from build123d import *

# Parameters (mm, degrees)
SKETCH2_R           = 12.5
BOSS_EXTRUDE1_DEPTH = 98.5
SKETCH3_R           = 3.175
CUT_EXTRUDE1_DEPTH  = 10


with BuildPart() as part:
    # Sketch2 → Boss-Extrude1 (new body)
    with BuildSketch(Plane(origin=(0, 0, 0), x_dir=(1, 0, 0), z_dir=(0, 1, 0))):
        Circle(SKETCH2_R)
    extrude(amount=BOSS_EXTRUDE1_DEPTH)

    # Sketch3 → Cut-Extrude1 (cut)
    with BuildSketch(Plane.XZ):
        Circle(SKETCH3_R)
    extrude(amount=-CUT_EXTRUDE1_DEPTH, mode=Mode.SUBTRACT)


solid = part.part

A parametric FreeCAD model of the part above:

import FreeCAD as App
import Part
import Sketcher

doc = App.newDocument("Part")
body = doc.addObject("PartDesign::Body", "Body")

sketch1 = doc.addObject("Sketcher::SketchObject", "Sketch")
body.addObject(sketch1)
sketch1.AttachmentSupport = (doc.XZ_Plane, [""])
sketch1.MapMode = "FlatFace"
sketch1.addGeometry(Part.Circle(App.Vector(0, 0, 0), App.Vector(0, 0, 1), 12.5), False)
sketch1.addConstraint([
    Sketcher.Constraint("Coincident", 0, 3, -1, 1),
    Sketcher.Constraint("Diameter", 0, 25.0),
])
pad1 = doc.addObject("PartDesign::Pad", "Pad")
body.addObject(pad1)
pad1.Profile = sketch1
pad1.Length = 98.5
pad1.Reversed = True

sketch2 = doc.addObject("Sketcher::SketchObject", "Sketch001")
body.addObject(sketch2)
sketch2.AttachmentSupport = (doc.XZ_Plane, [""])
sketch2.MapMode = "FlatFace"
sketch2.addGeometry(Part.Circle(App.Vector(0, 0, 0), App.Vector(0, 0, 1), 3.175), False)
sketch2.addConstraint([
    Sketcher.Constraint("Coincident", 0, 3, -1, 1),
    Sketcher.Constraint("Diameter", 0, 6.35),
])
pocket1 = doc.addObject("PartDesign::Pocket", "Pocket")
body.addObject(pocket1)
pocket1.Profile = sketch2
pocket1.Length = 10

doc.recompute()
